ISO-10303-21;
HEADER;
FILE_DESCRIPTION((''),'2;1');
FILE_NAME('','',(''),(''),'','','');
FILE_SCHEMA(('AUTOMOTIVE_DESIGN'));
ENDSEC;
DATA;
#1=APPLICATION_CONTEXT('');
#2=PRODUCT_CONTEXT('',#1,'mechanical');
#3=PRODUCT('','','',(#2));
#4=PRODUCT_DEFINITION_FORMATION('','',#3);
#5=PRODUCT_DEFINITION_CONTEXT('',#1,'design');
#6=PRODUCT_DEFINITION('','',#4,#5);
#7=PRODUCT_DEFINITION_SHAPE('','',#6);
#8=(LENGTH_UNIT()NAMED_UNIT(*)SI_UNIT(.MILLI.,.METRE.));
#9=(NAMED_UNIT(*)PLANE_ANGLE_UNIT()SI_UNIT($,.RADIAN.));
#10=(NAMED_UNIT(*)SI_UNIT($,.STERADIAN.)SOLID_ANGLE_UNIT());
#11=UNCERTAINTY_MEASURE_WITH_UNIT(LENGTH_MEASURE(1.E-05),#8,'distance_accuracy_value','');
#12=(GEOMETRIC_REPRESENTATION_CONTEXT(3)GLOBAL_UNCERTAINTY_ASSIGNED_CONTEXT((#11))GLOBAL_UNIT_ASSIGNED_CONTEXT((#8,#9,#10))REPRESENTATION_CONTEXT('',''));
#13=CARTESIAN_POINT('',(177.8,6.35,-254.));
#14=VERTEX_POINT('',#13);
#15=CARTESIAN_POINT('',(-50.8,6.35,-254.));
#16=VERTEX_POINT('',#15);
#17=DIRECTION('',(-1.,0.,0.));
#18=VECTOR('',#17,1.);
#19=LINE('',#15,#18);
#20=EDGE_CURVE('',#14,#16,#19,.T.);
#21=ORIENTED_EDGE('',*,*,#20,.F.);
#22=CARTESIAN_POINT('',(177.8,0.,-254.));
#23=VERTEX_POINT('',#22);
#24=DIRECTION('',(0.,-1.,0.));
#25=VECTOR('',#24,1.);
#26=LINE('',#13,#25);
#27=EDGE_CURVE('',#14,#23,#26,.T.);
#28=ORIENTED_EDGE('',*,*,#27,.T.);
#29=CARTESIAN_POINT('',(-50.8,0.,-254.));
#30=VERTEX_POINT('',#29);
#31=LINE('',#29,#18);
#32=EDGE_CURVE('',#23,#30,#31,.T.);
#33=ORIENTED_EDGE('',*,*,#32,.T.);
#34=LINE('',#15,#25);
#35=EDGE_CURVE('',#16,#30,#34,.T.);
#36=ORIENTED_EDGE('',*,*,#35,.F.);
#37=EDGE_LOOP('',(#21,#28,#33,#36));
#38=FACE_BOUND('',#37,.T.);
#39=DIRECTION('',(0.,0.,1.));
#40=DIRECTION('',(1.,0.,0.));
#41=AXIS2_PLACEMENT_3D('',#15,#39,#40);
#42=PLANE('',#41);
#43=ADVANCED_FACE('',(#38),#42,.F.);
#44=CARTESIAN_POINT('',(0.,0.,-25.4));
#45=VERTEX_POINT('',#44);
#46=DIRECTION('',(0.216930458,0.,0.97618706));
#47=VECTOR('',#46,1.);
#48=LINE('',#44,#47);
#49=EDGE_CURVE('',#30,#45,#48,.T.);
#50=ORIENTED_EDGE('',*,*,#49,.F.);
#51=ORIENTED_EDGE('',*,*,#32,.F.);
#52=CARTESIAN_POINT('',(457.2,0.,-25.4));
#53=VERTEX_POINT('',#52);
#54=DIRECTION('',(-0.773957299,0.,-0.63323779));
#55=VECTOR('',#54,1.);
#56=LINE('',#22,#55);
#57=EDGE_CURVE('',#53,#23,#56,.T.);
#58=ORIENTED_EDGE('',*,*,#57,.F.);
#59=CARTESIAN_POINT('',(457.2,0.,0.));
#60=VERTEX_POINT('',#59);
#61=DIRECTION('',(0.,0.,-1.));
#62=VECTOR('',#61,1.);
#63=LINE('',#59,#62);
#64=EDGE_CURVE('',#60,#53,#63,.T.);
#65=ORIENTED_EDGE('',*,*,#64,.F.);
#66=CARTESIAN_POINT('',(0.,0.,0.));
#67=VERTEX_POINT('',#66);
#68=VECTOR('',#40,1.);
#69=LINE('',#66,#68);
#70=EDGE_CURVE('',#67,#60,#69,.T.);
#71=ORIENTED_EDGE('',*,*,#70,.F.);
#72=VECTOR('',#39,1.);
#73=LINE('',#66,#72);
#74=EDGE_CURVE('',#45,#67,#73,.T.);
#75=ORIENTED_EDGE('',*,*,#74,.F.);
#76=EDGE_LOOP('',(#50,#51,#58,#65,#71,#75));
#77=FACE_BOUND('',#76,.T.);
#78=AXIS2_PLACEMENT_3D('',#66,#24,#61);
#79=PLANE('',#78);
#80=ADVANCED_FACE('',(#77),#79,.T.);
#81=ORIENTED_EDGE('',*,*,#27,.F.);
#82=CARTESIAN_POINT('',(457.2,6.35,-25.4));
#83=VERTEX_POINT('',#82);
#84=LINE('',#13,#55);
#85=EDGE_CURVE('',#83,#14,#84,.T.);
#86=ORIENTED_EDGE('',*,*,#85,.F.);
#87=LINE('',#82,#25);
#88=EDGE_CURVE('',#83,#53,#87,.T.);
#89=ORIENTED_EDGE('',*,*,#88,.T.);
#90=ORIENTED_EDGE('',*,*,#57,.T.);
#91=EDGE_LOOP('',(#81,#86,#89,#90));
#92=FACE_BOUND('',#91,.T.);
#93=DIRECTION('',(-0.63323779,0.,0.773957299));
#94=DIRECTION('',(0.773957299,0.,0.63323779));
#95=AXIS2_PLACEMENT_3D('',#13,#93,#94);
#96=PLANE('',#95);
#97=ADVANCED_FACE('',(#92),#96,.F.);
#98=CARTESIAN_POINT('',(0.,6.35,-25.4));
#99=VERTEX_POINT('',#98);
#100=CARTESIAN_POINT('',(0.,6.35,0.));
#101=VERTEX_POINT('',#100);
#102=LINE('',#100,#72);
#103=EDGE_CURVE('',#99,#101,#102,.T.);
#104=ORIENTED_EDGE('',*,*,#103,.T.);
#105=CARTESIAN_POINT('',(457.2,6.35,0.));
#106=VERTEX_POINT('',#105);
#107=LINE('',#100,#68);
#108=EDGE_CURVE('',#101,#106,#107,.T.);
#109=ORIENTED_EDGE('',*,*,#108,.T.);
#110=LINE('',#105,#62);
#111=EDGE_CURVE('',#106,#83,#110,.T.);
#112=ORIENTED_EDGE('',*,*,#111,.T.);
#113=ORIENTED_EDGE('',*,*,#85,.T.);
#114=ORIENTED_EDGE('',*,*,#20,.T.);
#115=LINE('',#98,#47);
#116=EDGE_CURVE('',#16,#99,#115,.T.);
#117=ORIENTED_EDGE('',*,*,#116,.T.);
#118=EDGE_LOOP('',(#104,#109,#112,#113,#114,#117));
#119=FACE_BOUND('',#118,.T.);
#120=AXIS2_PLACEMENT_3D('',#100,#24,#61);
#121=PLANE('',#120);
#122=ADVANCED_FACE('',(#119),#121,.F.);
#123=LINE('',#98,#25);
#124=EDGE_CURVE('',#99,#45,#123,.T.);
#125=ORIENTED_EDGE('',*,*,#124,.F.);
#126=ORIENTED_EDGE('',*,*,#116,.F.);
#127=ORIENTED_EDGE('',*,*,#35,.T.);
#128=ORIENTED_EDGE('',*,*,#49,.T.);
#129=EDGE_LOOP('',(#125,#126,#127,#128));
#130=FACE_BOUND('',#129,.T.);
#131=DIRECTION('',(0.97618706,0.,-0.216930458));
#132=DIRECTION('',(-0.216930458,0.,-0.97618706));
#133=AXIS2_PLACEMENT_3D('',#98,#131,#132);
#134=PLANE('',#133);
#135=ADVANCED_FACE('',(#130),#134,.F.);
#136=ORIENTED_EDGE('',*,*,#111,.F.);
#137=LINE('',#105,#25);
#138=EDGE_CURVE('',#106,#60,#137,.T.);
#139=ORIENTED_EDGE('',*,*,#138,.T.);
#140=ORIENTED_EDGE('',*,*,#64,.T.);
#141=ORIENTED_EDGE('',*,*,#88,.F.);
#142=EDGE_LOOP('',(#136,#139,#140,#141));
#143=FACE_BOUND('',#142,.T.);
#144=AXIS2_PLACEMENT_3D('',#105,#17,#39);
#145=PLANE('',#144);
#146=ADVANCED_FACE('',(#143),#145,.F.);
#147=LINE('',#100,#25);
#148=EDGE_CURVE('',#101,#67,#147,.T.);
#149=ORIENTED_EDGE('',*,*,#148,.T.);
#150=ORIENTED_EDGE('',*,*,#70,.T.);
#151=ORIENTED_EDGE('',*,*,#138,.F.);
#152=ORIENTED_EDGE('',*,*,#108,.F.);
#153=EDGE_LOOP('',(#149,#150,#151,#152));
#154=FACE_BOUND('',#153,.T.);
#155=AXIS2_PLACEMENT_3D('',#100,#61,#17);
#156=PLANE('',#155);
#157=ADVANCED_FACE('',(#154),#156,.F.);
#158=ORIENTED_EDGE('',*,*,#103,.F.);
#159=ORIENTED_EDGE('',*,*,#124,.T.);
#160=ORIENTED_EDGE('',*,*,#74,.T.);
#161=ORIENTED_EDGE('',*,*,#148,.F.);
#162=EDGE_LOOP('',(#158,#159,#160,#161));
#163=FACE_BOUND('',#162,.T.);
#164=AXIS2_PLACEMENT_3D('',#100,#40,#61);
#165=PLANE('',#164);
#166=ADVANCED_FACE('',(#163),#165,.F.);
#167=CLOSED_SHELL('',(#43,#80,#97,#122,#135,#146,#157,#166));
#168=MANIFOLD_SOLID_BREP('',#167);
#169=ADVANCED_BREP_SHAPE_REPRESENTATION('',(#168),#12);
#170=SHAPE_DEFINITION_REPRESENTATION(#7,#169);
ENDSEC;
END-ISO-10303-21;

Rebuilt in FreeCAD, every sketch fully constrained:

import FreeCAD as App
import Part
import Sketcher
Q = App.Units.Quantity

doc = App.newDocument("Part")
body = doc.addObject("PartDesign::Body", "Body")

sketch1 = doc.addObject("Sketcher::SketchObject", "Sketch")
body.addObject(sketch1)
sketch1.AttachmentSupport = (doc.XZ_Plane, [""])
sketch1.MapMode = "FlatFace"
sketch1.addGeometry([
    Part.LineSegment(App.Vector(-51, -254, 0), App.Vector(0, -25, 0)),
    Part.LineSegment(App.Vector(0, -25, 0), App.Vector(0, 0, 0)),
    Part.LineSegment(App.Vector(0, 0, 0), App.Vector(457, 0, 0)),
    Part.LineSegment(App.Vector(457, 0, 0), App.Vector(457, -25, 0)),
    Part.LineSegment(App.Vector(457, -25, 0), App.Vector(178, -254, 0)),
    Part.LineSegment(App.Vector(178, -254, 0), App.Vector(-51, -254, 0)),
], False)
sketch1.addConstraint([
    Sketcher.Constraint("Coincident", 0, 2, 1, 1),
    Sketcher.Constraint("Coincident", 1, 2, 2, 1),
    Sketcher.Constraint("Coincident", 2, 2, 3, 1),
    Sketcher.Constraint("Coincident", 3, 2, 4, 1),
    Sketcher.Constraint("Coincident", 4, 2, 5, 1),
    Sketcher.Constraint("Coincident", 5, 2, 0, 1),
    Sketcher.Constraint("Vertical", 1),
    Sketcher.Constraint("Horizontal", 2),
    Sketcher.Constraint("Vertical", 3),
    Sketcher.Constraint("Horizontal", 5),
    Sketcher.Constraint("Coincident", 1, 2, -1, 1),
    Sketcher.Constraint("Horizontal", 0, 2, 3, 2),
    Sketcher.Constraint("DistanceX", 2, 1, 2, 2, Q("18 in")),
    Sketcher.Constraint("DistanceX", 5, 2, 5, 1, Q("9 in")),
    Sketcher.Constraint("DistanceY", 1, 1, 1, 2, Q("1 in")),
    Sketcher.Constraint("DistanceX", -1, 1, 4, 2, Q("7 in")),
    Sketcher.Constraint("DistanceY", 4, 2, -1, 1, Q("10 in")),
])
pad1 = doc.addObject("PartDesign::Pad", "Pad")
body.addObject(pad1)
pad1.Profile = sketch1
pad1.Length = Q("0.25 in")
pad1.Reversed = True

doc.recompute()
